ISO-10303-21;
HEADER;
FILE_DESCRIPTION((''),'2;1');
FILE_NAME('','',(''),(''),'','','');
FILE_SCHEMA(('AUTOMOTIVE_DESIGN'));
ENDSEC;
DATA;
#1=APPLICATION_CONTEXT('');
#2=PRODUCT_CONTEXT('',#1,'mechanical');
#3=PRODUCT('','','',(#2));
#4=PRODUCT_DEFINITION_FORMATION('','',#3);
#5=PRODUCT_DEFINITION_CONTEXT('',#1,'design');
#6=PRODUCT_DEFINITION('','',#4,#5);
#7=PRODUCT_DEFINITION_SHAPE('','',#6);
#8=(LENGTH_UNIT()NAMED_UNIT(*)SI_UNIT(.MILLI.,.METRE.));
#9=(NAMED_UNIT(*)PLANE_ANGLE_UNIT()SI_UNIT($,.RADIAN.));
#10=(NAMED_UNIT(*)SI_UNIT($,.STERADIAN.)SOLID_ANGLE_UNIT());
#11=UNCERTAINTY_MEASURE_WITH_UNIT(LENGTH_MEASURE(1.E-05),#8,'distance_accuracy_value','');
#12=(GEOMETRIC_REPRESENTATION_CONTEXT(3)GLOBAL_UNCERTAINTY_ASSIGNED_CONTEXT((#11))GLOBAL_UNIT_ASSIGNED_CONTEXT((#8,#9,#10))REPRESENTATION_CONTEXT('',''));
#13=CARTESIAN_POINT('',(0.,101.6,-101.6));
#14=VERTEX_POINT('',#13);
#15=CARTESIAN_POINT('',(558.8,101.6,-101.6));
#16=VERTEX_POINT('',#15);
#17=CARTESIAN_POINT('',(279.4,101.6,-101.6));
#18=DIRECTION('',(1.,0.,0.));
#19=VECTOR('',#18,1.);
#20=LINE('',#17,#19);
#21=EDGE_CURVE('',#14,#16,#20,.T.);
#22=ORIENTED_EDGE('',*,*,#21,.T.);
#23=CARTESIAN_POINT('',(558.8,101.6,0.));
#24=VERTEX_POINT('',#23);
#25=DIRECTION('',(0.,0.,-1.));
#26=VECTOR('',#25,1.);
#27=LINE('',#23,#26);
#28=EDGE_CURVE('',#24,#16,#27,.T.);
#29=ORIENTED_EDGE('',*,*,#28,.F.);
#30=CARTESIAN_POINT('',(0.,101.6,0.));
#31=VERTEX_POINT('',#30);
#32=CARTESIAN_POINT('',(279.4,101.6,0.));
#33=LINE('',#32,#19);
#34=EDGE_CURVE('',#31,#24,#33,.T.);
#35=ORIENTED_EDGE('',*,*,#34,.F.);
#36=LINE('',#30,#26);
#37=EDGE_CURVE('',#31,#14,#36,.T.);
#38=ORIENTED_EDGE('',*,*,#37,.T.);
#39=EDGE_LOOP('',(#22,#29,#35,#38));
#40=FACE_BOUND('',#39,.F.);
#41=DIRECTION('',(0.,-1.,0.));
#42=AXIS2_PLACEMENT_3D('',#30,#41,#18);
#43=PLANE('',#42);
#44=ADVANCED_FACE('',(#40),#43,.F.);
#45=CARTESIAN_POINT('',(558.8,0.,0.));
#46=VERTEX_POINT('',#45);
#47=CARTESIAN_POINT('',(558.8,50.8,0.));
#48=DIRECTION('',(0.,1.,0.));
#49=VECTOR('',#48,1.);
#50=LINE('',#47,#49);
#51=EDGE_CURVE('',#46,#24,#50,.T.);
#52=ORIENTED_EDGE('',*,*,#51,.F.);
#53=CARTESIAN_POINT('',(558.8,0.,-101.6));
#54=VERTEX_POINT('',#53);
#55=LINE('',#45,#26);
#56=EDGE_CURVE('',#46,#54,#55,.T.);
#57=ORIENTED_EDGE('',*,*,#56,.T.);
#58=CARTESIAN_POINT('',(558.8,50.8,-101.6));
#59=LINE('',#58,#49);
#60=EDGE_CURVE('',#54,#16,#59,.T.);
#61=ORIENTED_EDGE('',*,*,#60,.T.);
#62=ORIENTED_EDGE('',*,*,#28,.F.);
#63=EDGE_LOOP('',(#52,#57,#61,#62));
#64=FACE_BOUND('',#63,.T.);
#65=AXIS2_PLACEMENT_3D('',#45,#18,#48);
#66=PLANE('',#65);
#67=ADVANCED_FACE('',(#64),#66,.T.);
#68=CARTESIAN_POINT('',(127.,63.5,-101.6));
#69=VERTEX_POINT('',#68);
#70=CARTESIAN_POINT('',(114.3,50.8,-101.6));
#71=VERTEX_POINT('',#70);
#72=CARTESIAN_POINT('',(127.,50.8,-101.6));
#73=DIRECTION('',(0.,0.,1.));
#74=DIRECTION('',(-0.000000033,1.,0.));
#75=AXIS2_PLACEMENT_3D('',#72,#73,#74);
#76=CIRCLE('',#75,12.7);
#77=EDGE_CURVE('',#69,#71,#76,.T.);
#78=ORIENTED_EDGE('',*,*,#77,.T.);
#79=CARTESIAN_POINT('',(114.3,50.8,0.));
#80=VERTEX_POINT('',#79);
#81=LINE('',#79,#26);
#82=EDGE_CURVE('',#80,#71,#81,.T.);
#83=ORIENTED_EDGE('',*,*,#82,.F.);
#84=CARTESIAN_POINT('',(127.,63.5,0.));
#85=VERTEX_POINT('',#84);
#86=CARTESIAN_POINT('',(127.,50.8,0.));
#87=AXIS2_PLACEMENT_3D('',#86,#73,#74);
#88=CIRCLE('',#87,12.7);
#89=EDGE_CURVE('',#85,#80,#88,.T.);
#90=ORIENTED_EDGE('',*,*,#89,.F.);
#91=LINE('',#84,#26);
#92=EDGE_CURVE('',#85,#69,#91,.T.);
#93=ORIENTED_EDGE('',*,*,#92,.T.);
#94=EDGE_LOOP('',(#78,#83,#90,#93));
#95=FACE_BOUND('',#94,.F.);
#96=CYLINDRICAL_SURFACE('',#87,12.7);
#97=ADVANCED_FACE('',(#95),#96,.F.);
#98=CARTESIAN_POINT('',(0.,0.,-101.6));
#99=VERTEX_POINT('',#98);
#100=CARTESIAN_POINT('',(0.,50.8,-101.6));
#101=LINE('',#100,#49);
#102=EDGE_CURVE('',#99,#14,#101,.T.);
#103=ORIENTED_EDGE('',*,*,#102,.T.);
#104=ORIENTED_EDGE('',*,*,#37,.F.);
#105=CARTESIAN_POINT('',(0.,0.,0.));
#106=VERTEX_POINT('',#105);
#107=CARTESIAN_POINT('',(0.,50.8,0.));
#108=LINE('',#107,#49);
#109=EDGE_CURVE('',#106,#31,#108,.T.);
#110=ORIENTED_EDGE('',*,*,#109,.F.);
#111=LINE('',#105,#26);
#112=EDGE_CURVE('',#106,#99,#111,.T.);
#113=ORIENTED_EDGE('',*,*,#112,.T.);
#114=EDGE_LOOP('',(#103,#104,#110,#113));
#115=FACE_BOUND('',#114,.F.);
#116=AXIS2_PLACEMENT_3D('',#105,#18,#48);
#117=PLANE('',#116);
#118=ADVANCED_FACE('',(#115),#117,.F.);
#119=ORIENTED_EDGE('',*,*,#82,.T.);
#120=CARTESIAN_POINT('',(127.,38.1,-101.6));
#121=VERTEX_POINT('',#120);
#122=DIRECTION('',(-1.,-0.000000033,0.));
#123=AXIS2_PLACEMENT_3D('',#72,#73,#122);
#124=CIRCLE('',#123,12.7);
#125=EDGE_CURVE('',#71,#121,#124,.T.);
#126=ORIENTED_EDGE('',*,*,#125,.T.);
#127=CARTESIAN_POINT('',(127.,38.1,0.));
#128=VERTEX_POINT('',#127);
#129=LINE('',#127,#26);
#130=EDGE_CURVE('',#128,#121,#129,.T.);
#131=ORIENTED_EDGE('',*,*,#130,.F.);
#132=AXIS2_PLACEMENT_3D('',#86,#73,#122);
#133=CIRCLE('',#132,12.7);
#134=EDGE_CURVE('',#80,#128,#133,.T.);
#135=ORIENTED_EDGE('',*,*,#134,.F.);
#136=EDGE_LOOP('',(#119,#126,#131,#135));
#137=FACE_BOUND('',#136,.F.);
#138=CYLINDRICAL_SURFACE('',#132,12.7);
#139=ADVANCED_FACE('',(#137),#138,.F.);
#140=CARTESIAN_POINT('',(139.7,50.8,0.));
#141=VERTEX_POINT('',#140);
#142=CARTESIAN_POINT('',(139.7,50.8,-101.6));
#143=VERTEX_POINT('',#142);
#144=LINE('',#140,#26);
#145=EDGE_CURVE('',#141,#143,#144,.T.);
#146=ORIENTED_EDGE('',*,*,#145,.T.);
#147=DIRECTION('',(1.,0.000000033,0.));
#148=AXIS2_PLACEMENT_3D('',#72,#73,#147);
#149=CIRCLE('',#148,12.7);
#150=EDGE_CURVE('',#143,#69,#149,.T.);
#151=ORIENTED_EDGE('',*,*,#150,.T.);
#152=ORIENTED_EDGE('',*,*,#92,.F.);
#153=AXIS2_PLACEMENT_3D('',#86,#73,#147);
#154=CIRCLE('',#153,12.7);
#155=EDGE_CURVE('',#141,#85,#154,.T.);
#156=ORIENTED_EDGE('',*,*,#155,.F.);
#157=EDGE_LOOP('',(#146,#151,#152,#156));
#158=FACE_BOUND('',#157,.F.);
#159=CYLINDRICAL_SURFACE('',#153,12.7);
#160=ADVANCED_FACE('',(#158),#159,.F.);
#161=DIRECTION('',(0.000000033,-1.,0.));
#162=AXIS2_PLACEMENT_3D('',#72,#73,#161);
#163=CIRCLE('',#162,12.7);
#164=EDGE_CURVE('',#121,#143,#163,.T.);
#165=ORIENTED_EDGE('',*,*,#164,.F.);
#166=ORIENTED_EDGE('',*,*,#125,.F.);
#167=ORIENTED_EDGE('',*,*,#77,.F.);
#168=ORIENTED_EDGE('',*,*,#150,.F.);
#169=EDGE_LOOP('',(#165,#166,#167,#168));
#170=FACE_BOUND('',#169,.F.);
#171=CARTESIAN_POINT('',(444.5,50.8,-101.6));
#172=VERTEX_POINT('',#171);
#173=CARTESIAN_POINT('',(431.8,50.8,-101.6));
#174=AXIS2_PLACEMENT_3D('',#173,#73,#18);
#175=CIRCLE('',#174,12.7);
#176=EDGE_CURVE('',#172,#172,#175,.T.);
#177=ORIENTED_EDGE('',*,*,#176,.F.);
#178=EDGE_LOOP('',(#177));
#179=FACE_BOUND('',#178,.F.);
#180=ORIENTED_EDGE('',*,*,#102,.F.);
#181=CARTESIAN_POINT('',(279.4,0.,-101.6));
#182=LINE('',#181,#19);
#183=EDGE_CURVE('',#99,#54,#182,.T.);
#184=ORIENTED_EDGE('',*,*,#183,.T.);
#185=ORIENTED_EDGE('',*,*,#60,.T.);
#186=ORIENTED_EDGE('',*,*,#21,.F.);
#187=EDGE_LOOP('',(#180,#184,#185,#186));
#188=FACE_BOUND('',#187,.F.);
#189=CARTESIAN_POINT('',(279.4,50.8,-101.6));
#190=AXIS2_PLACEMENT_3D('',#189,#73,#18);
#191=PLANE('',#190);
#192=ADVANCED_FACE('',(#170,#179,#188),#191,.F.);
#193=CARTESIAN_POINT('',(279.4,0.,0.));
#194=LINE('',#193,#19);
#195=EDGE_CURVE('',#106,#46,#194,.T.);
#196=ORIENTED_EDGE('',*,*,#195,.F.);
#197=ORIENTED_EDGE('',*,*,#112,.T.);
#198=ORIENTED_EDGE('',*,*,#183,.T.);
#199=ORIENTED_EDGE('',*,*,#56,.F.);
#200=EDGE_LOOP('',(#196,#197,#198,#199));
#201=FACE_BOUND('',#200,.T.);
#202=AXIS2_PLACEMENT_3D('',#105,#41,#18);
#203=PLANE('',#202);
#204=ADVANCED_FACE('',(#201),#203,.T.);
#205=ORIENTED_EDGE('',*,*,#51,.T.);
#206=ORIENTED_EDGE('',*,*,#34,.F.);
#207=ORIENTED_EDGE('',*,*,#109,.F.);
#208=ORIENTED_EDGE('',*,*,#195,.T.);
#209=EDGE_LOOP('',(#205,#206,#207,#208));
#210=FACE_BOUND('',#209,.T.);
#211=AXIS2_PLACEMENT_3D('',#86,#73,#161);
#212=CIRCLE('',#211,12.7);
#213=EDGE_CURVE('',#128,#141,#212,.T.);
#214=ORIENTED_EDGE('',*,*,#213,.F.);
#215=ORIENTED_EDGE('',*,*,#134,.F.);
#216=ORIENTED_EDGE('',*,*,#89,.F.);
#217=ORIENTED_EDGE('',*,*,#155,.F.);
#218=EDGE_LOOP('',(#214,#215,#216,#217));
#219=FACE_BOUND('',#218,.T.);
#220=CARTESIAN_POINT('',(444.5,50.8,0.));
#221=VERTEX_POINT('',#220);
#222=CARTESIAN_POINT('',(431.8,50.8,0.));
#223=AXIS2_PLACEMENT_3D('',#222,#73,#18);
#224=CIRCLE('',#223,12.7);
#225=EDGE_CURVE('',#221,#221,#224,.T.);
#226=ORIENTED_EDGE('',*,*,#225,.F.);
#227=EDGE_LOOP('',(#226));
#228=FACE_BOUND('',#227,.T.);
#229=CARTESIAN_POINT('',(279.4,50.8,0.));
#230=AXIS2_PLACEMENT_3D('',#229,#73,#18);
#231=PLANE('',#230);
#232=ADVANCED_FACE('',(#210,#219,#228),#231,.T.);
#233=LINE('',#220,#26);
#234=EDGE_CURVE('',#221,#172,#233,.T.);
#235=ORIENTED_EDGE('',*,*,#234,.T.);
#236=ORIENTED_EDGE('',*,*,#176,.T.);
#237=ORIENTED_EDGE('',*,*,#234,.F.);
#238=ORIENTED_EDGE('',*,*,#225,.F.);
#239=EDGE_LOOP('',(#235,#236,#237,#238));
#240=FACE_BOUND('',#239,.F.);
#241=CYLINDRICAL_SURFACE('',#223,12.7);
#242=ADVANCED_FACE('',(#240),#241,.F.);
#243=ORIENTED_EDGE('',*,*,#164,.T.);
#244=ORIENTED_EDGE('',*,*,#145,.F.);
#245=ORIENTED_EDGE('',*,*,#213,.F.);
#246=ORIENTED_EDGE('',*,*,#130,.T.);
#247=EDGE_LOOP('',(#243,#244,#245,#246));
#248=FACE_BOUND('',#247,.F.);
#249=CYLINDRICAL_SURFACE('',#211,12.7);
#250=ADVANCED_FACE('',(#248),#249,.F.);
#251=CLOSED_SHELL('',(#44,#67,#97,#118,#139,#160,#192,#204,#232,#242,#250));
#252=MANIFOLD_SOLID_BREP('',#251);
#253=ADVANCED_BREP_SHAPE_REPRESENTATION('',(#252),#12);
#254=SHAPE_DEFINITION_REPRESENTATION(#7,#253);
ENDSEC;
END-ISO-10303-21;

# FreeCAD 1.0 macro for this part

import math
import FreeCAD as App
import Part
import Sketcher
from FreeCAD import Vector
Q = App.Units.Quantity

doc = App.newDocument("Part")
body = doc.addObject("PartDesign::Body", "Body")

sketch1 = body.newObject("Sketcher::SketchObject", "Sketch")
sketch1.AttachmentSupport = (doc.getObject("XY_Plane"), [""])
sketch1.MapMode = "FlatFace"
sketch1.addGeometry([
    Part.LineSegment(Vector(0, 102, 0), Vector(0, 0, 0)),
    Part.LineSegment(Vector(0, 0, 0), Vector(559, 0, 0)),
    Part.LineSegment(Vector(559, 0, 0), Vector(559, 102, 0)),
    Part.LineSegment(Vector(559, 102, 0), Vector(0, 102, 0)),
], False)
sketch1.addConstraint([
    Sketcher.Constraint("Coincident", 0, 2, 1, 1),
    Sketcher.Constraint("Coincident", 1, 2, 2, 1),
    Sketcher.Constraint("Coincident", 2, 2, 3, 1),
    Sketcher.Constraint("Coincident", 3, 2, 0, 1),
    Sketcher.Constraint("Vertical", 0),
    Sketcher.Constraint("Horizontal", 1),
    Sketcher.Constraint("Vertical", 2),
    Sketcher.Constraint("Horizontal", 3),
    Sketcher.Constraint("Coincident", 0, 2, -1, 1),
    Sketcher.Constraint("DistanceX", 1, 1, 1, 2, Q("22 in")),
    Sketcher.Constraint("DistanceY", 0, 2, 0, 1, Q("4 in")),
])
pad1 = body.newObject("PartDesign::Pad", "Pad")
pad1.Profile = sketch1
pad1.Length = Q("4 in")
pad1.Reversed = True

sketch2 = body.newObject("Sketcher::SketchObject", "Sketch001")
sketch2.AttachmentSupport = (doc.getObject("XY_Plane"), [""])
sketch2.MapMode = "FlatFace"
sketch2.addGeometry([
    Part.ArcOfCircle(Part.Circle(Vector(127, 51, 0), Vector(0, 0, 1), 13), math.radians(-90), math.radians(0)),
    Part.ArcOfCircle(Part.Circle(Vector(127, 51, 0), Vector(0, 0, 1), 13), math.radians(0), math.radians(90)),
    Part.ArcOfCircle(Part.Circle(Vector(127, 51, 0), Vector(0, 0, 1), 13), math.radians(90), math.radians(180)),
    Part.ArcOfCircle(Part.Circle(Vector(127, 51, 0), Vector(0, 0, 1), 13), math.radians(-180), math.radians(-90)),
    Part.Circle(Vector(432, 51, 0), Vector(0, 0, 1), 13),
], False)
sketch2.addConstraint([
    Sketcher.Constraint("Tangent", 0, 2, 1, 1),
    Sketcher.Constraint("Tangent", 1, 2, 2, 1),
    Sketcher.Constraint("Tangent", 2, 2, 3, 1),
    Sketcher.Constraint("Tangent", 3, 2, 0, 1),
    Sketcher.Constraint("Equal", 0, 1),
    Sketcher.Constraint("Equal", 3, 4),
    Sketcher.Constraint("Horizontal", 3, 3, 4, 3),
    Sketcher.Constraint("Horizontal", 4, 3, 0, 2),
    Sketcher.Constraint("Horizontal", 0, 2, 2, 2),
    Sketcher.Constraint("Vertical", 3, 3, 1, 2),
    Sketcher.Constraint("Vertical", 1, 2, 3, 2),
    Sketcher.Constraint("Diameter", 4, Q("1 in")),
    Sketcher.Constraint("DistanceX", -1, 1, 0, 3, Q("5 in")),
    Sketcher.Constraint("DistanceY", -1, 1, 0, 3, Q("2 in")),
    Sketcher.Constraint("DistanceX", -1, 1, 4, 3, Q("17 in")),
])
pocket1 = body.newObject("PartDesign::Pocket", "Pocket")
pocket1.Profile = sketch2
pocket1.Type = "ThroughAll"

doc.recompute()
